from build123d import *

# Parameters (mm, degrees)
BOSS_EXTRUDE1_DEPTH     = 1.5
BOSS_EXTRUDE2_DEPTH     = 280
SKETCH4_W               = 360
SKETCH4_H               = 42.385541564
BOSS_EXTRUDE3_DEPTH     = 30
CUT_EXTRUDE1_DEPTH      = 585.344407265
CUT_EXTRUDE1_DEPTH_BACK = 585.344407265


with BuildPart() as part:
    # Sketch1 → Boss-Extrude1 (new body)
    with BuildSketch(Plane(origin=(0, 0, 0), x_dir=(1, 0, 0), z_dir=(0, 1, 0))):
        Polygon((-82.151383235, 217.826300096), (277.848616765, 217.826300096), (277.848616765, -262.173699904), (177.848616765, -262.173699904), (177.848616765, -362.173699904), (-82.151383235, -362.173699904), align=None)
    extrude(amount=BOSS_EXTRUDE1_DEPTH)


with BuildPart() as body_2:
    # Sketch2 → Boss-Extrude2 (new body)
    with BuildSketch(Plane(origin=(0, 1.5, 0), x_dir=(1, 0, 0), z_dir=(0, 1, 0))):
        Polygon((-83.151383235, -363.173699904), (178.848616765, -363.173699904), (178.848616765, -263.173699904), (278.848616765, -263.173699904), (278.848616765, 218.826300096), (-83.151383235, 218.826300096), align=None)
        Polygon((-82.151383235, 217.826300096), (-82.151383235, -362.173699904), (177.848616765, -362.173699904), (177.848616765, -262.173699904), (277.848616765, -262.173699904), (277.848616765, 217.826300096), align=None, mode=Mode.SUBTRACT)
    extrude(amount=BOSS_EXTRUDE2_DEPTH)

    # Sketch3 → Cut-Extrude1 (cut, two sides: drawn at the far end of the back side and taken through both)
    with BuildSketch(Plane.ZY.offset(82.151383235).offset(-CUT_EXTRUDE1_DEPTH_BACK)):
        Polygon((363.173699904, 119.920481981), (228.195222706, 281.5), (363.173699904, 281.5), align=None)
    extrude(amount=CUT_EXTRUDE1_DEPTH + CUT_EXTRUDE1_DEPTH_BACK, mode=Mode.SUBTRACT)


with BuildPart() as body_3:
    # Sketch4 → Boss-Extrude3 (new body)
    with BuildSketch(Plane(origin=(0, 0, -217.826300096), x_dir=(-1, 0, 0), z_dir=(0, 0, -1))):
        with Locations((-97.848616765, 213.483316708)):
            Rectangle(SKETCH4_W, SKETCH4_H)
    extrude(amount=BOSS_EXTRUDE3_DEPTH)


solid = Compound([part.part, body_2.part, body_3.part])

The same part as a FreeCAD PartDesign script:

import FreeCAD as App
import Part
import Sketcher
from FreeCAD import Vector
Q = App.Units.Quantity


def add_polygon(sketch, points):
    """Adds a closed chain of lines whose ends are joined by coincident constraints."""
    first, n = sketch.GeometryCount, len(points)
    for a, b in zip(points, points[1:] + points[:1]):
        sketch.addGeometry(Part.LineSegment(App.Vector(*a, 0), App.Vector(*b, 0)), False)
    for i in range(n):
        sketch.addConstraint(Sketcher.Constraint("Coincident", first + i, 2, first + (i + 1) % n, 1))

doc = App.newDocument("Part")
body = doc.addObject("PartDesign::Body", "Body")

sketch1 = body.newObject("Sketcher::SketchObject", "Sketch")
sketch1.AttachmentSupport = (doc.getObject("XZ_Plane"), [""])
sketch1.MapMode = "FlatFace"
add_polygon(sketch1, [(278, -218), (-82, -218), (-82, 362), (178, 362), (178, 262), (278, 262)])
sketch1.addConstraint([
    Sketcher.Constraint("Horizontal", 0),
    Sketcher.Constraint("Vertical", 1),
    Sketcher.Constraint("Horizontal", 2),
    Sketcher.Constraint("Vertical", 3),
    Sketcher.Constraint("Horizontal", 4),
    Sketcher.Constraint("Vertical", 5),
    Sketcher.Constraint("Equal", 4, 3),
    Sketcher.Constraint("DistanceX", 0, 2, 0, 1, Q("360 mm")),
    Sketcher.Constraint("DistanceX", 2, 1, 2, 2, Q("260 mm")),
    Sketcher.Constraint("DistanceY", 1, 1, 1, 2, Q("580 mm")),
    Sketcher.Constraint("DistanceY", 0, 2, -1, 1, Q("217.8263 mm")),
    Sketcher.Constraint("DistanceX", 0, 2, -1, 1, Q("82.151383 mm")),
])
pad1 = body.newObject("PartDesign::Pad", "Pad")
pad1.Profile = sketch1
pad1.Length = 1.5
pad1.Reversed = True
body2 = doc.addObject("PartDesign::Body", "Body001")

sketch2 = body2.newObject("Sketcher::SketchObject", "Sketch001")
sketch2.AttachmentSupport = (doc.getObject("XZ_Plane001"), [""])
sketch2.MapMode = "FlatFace"
sketch2.AttachmentOffset = App.Placement(Vector(0, 0, -1.5), App.Rotation())
add_polygon(sketch2, [(-83, 363), (179, 363), (179, 263), (279, 263), (279, -219), (-83, -219)])
add_polygon(sketch2, [(-82, 362), (-82, -218), (278, -218), (278, 262), (178, 262), (178, 362)])
sketch2.addConstraint([
    Sketcher.Constraint("Horizontal", 0),
    Sketcher.Constraint("Vertical", 1),
    Sketcher.Constraint("Horizontal", 2),
    Sketcher.Constraint("Vertical", 3),
    Sketcher.Constraint("Horizontal", 4),
    Sketcher.Constraint("Vertical", 5),
    Sketcher.Constraint("Vertical", 6),
    Sketcher.Constraint("Horizontal", 7),
    Sketcher.Constraint("Vertical", 8),
    Sketcher.Constraint("Horizontal", 9),
    Sketcher.Constraint("Vertical", 10),
    Sketcher.Constraint("Horizontal", 11),
    Sketcher.Constraint("Equal", 2, 9),
    Sketcher.Constraint("Equal", 9, 1),
    Sketcher.Constraint("Equal", 1, 10),
    Sketcher.Constraint("DistanceX", 0, 1, 0, 2, Q("262 mm")),
    Sketcher.Constraint("DistanceX", 2, 1, 2, 2, Q("100 mm")),
    Sketcher.Constraint("DistanceX", 7, 1, 7, 2, Q("360 mm")),
    Sketcher.Constraint("DistanceY", 3, 2, 3, 1, Q("482 mm")),
    Sketcher.Constraint("DistanceY", 6, 2, 6, 1, Q("580 mm")),
    Sketcher.Constraint("DistanceX", 4, 2, 6, 2, Q("1 mm")),
    Sketcher.Constraint("DistanceY", 4, 2, 6, 2, Q("1 mm")),
    Sketcher.Constraint("DistanceY", -1, 1, 0, 2, Q("363.1737 mm")),
    Sketcher.Constraint("DistanceX", -1, 1, 0, 2, Q("178.848617 mm")),
])
pad2 = body2.newObject("PartDesign::Pad", "Pad001")
pad2.Profile = sketch2
pad2.Length = 280
pad2.Reversed = True

sketch3 = body2.newObject("Sketcher::SketchObject", "Sketch002")
sketch3.AttachmentSupport = (doc.getObject("YZ_Plane001"), [""])
sketch3.MapMode = "FlatFace"
sketch3.AttachmentOffset = App.Placement(Vector(0, 0, -82.151383), App.Rotation())
add_polygon(sketch3, [(282, 228), (120, 363), (282, 363)])
sketch3.addConstraint([
    Sketcher.Constraint("Horizontal", 1),
    Sketcher.Constraint("Vertical", 2),
    Sketcher.Constraint("DistanceX", -1, 1, 1, 2, Q("281.5 mm")),
    Sketcher.Constraint("DistanceX", 1, 1, 1, 2, Q("161.579518 mm")),
    Sketcher.Constraint("DistanceY", -1, 1, 0, 2, Q("363.1737 mm")),
    Sketcher.Constraint("Distance", 0, Q("210.540091 mm")),
])
pocket1 = body2.newObject("PartDesign::Pocket", "Pocket")
pocket1.Profile = sketch3
pocket1.Type = "ThroughAll"
pocket1.Midplane = True
body3 = doc.addObject("PartDesign::Body", "Body002")

sketch4 = body3.newObject("Sketcher::SketchObject", "Sketch003")
sketch4.AttachmentSupport = (doc.getObject("XY_Plane002"), [""])
sketch4.MapMode = "FlatFace"
sketch4.AttachmentOffset = App.Placement(Vector(0, 0, -217.8263), App.Rotation())
add_polygon(sketch4, [(278, 235), (278, 192), (-82, 192), (-82, 235)])
sketch4.addConstraint([
    Sketcher.Constraint("Vertical", 0),
    Sketcher.Constraint("Horizontal", 1),
    Sketcher.Constraint("Vertical", 2),
    Sketcher.Constraint("Horizontal", 3),
    Sketcher.Constraint("DistanceX", 1, 2, 1, 1, Q("360 mm")),
    Sketcher.Constraint("DistanceY", 0, 2, 0, 1, Q("42.385542 mm")),
    Sketcher.Constraint("DistanceX", -1, 1, 0, 2, Q("277.848617 mm")),
    Sketcher.Constraint("DistanceY", -1, 1, 0, 2, Q("192.290546 mm")),
])
pad3 = body3.newObject("PartDesign::Pad", "Pad002")
pad3.Profile = sketch4
pad3.Length = 30
pad3.Reversed = True

doc.recompute()
